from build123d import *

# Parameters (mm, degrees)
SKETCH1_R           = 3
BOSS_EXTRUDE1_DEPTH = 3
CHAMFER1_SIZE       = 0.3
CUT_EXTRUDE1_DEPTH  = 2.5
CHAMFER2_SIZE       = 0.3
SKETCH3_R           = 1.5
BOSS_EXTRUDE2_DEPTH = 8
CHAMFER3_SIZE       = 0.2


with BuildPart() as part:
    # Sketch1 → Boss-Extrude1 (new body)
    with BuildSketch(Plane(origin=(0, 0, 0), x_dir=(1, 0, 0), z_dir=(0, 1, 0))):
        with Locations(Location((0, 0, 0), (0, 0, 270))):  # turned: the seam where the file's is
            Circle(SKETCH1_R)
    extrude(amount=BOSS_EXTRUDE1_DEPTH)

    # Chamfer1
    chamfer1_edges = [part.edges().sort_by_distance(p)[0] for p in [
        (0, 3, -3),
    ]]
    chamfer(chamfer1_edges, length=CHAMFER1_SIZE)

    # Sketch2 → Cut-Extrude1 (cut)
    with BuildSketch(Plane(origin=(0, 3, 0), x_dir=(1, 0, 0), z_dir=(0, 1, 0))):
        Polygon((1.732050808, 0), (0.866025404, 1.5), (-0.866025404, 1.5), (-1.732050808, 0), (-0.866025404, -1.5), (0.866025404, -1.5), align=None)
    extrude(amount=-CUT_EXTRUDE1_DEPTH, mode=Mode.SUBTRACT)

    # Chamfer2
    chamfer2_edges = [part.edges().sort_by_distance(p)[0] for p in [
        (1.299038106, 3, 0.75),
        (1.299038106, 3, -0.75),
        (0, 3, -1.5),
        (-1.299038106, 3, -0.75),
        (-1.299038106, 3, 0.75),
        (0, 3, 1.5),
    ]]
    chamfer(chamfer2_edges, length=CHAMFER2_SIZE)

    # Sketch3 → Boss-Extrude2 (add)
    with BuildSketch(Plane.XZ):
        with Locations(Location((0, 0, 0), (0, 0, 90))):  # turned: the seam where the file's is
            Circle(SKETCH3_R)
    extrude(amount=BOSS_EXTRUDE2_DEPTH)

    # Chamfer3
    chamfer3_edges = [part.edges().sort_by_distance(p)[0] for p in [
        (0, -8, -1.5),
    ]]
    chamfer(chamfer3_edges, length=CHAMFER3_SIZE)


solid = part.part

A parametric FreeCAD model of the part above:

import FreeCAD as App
import Part
import Sketcher
from FreeCAD import Vector
Q = App.Units.Quantity


def edges_at(feature, points):
    """Names of the edges that pass closest to the given points."""
    edges = feature.Shape.Edges
    near = lambda p: min(range(len(edges)), key=lambda i: edges[i].distToShape(Part.Vertex(*p))[0])
    return sorted({f"Edge{near(p) + 1}" for p in points})


def add_polygon(sketch, points):
    """Adds a closed chain of lines whose ends are joined by coincident constraints."""
    first, n = sketch.GeometryCount, len(points)
    for a, b in zip(points, points[1:] + points[:1]):
        sketch.addGeometry(Part.LineSegment(App.Vector(*a, 0), App.Vector(*b, 0)), False)
    for i in range(n):
        sketch.addConstraint(Sketcher.Constraint("Coincident", first + i, 2, first + (i + 1) % n, 1))

doc = App.newDocument("Part")
body = doc.addObject("PartDesign::Body", "Body")

# Sketch on XZ plane
sketch1 = body.newObject("Sketcher::SketchObject", "Sketch")
sketch1.AttachmentSupport = (doc.getObject("XZ_Plane"), [""])
sketch1.MapMode = "FlatFace"
sketch1.addGeometry(Part.Circle(Vector(0, 0, 0), Vector(0, 0, 1), 3), False)
sketch1.addConstraint(Sketcher.Constraint("Coincident", 0, 3, -1, 1))
sketch1.addConstraint(Sketcher.Constraint("Diameter", 0, Q("6 mm")))
pad1 = body.newObject("PartDesign::Pad", "Pad")
pad1.Profile = sketch1
pad1.Length = 3
pad1.Reversed = True
doc.recompute()

chamfer = body.newObject("PartDesign::Chamfer", "Chamfer")
chamfer.Base = (pad1, edges_at(pad1, [(0, 3, -3)]))
chamfer.Size = 0.3

# Sketch on XZ plane
sketch2 = body.newObject("Sketcher::SketchObject", "Sketch001")
sketch2.AttachmentSupport = (doc.getObject("XZ_Plane"), [""])
sketch2.MapMode = "FlatFace"
sketch2.AttachmentOffset = App.Placement(Vector(0, 0, -3), App.Rotation())
add_polygon(sketch2, [(1.7, 0), (0.9, -1.5), (-0.9, -1.5), (-1.7, 0), (-0.9, 1.5), (0.9, 1.5)])  # lines 0-5
sketch2.addConstraint(Sketcher.Constraint("Horizontal", 1))
sketch2.addConstraint(Sketcher.Constraint("Horizontal", 4))
sketch2.addConstraint(Sketcher.Constraint("Symmetric", 0, 2, 3, 2, -1, 1))
sketch2.addConstraint(Sketcher.Constraint("Symmetric", 2, 2, 5, 2, -1, 1))
sketch2.addConstraint(Sketcher.Constraint("PointOnObject", 2, 2, -1))
sketch2.addConstraint(Sketcher.Constraint("Parallel", 2, 5))
sketch2.addConstraint(Sketcher.Constraint("Vertical", 1, 2, 3, 2))
sketch2.addConstraint(Sketcher.Constraint("Angle", 0, Q("-120 deg")))
sketch2.addConstraint(Sketcher.Constraint("DistanceY", 1, 2, 3, 2, Q("3 mm")))
sketch2.addConstraint(Sketcher.Constraint("DistanceX", 1, 2, 1, 1, Q("1.732051 mm")))
pocket1 = body.newObject("PartDesign::Pocket", "Pocket")
pocket1.Profile = sketch2
pocket1.Length = 2.5
pocket1.Reversed = True
doc.recompute()

chamfer2 = body.newObject("PartDesign::Chamfer", "Chamfer001")
chamfer2.Base = (pocket1, edges_at(pocket1, [
    (1.299, 3, 0.75),
    (1.299, 3, -0.75),
    (0, 3, -1.5),
    (-1.299, 3, -0.75),
    (-1.299, 3, 0.75),
    (0, 3, 1.5),
]))
chamfer2.Size = 0.3

# Sketch on XZ plane
sketch3 = body.newObject("Sketcher::SketchObject", "Sketch002")
sketch3.AttachmentSupport = (doc.getObject("XZ_Plane"), [""])
sketch3.MapMode = "FlatFace"
sketch3.addGeometry(Part.Circle(Vector(0, 0, 0), Vector(0, 0, 1), 1.5), False)
sketch3.addConstraint(Sketcher.Constraint("Coincident", 0, 3, -1, 1))
sketch3.addConstraint(Sketcher.Constraint("Diameter", 0, Q("3 mm")))
pad2 = body.newObject("PartDesign::Pad", "Pad001")
pad2.Profile = sketch3
pad2.Length = 8
doc.recompute()

chamfer3 = body.newObject("PartDesign::Chamfer", "Chamfer002")
chamfer3.Base = (pad2, edges_at(pad2, [(0, -8, -1.5)]))
chamfer3.Size = 0.2

doc.recompute()
